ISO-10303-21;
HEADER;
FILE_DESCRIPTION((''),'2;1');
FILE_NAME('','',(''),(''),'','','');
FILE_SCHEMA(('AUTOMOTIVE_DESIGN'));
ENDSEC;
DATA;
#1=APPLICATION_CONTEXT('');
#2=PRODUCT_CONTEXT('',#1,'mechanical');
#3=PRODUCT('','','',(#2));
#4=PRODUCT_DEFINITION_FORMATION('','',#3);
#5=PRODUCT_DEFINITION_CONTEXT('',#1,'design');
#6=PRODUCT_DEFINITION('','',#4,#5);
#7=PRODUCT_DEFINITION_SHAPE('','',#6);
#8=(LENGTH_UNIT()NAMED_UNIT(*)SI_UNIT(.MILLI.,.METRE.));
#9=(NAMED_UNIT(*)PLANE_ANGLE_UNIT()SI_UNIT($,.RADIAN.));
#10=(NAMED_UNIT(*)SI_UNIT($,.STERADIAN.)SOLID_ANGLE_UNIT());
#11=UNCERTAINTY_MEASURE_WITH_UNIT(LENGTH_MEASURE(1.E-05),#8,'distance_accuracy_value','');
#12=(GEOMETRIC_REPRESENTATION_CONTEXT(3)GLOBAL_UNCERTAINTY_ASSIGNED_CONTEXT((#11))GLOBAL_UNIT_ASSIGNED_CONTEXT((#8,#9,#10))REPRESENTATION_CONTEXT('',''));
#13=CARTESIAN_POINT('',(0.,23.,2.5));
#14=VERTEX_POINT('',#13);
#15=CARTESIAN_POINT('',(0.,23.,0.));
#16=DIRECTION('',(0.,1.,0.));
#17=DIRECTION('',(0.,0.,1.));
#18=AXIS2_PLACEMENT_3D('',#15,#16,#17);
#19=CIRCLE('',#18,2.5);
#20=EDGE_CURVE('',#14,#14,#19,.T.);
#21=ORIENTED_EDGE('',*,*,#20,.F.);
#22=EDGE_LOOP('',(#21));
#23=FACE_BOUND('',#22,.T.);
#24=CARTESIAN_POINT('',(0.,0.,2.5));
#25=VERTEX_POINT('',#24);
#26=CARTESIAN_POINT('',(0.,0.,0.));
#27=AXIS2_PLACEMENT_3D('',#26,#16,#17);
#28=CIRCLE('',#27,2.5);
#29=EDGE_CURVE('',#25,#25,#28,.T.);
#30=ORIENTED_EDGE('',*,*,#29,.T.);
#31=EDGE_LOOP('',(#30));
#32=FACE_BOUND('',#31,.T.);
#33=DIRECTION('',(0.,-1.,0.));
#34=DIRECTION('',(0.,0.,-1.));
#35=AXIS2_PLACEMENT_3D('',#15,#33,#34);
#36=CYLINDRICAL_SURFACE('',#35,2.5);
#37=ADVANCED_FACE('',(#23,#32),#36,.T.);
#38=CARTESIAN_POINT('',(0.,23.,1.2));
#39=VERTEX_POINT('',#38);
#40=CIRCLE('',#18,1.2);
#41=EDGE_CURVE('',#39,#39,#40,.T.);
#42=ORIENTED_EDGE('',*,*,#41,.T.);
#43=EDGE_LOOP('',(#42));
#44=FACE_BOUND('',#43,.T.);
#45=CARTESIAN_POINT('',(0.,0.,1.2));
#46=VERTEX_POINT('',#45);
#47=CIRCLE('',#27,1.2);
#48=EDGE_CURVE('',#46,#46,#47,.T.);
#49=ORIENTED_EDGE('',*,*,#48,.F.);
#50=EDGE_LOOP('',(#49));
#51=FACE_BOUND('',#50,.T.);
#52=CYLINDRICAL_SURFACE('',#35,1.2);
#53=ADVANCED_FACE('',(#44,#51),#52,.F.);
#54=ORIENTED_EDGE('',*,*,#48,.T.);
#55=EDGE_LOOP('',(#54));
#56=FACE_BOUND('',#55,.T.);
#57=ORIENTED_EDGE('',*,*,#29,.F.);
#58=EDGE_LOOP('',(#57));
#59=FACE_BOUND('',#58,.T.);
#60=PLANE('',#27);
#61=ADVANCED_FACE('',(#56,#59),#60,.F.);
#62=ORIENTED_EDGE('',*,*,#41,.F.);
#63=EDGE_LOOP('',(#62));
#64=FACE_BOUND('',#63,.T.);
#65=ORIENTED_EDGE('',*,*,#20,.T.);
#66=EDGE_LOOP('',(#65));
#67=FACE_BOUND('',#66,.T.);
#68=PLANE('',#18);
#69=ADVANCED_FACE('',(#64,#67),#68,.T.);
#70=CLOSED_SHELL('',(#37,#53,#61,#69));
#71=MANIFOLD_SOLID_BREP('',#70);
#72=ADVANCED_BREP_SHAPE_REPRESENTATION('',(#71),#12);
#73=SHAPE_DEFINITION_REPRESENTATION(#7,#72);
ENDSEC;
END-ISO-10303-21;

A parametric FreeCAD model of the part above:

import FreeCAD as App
import Part
import Sketcher

V = App.Vector
Q = App.Units.Quantity

doc = App.newDocument("Part")
params = doc.addObject("Spreadsheet::Sheet", "Params")
for row, (alias, value) in enumerate([
    ("sketch1_diameter", "5 mm"),
    ("sketch1_diameter2", "2.4 mm"),
    ("pad1_length", "23 mm"),
], start=1):
    params.set(f"A{row}", alias)
    params.set(f"B{row}", "=" + value)
    params.setAlias(f"B{row}", alias)

body = doc.addObject("PartDesign::Body", "Body")

# Sketch on XZ plane
sketch1 = body.newObject("Sketcher::SketchObject", "Sketch")
sketch1.AttachmentSupport = (doc.getObject("XZ_Plane"), [""])
sketch1.MapMode = "FlatFace"
sketch1.addGeometry(Part.Circle(V(0, 0, 0), V(0, 0, 1), 2.5), False)
sketch1.addGeometry(Part.Circle(V(0, 0, 0), V(0, 0, 1), 1.2), False)
sketch1.addConstraint(Sketcher.Constraint("Coincident", 0, 3, -1, 1))
sketch1.addConstraint(Sketcher.Constraint("Coincident", 1, 3, -1, 1))
sketch1.addConstraint(Sketcher.Constraint("Diameter", 0, Q("5 mm")))
sketch1.addConstraint(Sketcher.Constraint("Diameter", 1, Q("2.4 mm")))
sketch1.setExpression("Constraints[2]", "Params.sketch1_diameter")
sketch1.setExpression("Constraints[3]", "Params.sketch1_diameter2")
pad1 = body.newObject("PartDesign::Pad", "Pad")
pad1.Profile = sketch1
pad1.setExpression("Length", "Params.pad1_length")
pad1.Reversed = True

doc.recompute()
